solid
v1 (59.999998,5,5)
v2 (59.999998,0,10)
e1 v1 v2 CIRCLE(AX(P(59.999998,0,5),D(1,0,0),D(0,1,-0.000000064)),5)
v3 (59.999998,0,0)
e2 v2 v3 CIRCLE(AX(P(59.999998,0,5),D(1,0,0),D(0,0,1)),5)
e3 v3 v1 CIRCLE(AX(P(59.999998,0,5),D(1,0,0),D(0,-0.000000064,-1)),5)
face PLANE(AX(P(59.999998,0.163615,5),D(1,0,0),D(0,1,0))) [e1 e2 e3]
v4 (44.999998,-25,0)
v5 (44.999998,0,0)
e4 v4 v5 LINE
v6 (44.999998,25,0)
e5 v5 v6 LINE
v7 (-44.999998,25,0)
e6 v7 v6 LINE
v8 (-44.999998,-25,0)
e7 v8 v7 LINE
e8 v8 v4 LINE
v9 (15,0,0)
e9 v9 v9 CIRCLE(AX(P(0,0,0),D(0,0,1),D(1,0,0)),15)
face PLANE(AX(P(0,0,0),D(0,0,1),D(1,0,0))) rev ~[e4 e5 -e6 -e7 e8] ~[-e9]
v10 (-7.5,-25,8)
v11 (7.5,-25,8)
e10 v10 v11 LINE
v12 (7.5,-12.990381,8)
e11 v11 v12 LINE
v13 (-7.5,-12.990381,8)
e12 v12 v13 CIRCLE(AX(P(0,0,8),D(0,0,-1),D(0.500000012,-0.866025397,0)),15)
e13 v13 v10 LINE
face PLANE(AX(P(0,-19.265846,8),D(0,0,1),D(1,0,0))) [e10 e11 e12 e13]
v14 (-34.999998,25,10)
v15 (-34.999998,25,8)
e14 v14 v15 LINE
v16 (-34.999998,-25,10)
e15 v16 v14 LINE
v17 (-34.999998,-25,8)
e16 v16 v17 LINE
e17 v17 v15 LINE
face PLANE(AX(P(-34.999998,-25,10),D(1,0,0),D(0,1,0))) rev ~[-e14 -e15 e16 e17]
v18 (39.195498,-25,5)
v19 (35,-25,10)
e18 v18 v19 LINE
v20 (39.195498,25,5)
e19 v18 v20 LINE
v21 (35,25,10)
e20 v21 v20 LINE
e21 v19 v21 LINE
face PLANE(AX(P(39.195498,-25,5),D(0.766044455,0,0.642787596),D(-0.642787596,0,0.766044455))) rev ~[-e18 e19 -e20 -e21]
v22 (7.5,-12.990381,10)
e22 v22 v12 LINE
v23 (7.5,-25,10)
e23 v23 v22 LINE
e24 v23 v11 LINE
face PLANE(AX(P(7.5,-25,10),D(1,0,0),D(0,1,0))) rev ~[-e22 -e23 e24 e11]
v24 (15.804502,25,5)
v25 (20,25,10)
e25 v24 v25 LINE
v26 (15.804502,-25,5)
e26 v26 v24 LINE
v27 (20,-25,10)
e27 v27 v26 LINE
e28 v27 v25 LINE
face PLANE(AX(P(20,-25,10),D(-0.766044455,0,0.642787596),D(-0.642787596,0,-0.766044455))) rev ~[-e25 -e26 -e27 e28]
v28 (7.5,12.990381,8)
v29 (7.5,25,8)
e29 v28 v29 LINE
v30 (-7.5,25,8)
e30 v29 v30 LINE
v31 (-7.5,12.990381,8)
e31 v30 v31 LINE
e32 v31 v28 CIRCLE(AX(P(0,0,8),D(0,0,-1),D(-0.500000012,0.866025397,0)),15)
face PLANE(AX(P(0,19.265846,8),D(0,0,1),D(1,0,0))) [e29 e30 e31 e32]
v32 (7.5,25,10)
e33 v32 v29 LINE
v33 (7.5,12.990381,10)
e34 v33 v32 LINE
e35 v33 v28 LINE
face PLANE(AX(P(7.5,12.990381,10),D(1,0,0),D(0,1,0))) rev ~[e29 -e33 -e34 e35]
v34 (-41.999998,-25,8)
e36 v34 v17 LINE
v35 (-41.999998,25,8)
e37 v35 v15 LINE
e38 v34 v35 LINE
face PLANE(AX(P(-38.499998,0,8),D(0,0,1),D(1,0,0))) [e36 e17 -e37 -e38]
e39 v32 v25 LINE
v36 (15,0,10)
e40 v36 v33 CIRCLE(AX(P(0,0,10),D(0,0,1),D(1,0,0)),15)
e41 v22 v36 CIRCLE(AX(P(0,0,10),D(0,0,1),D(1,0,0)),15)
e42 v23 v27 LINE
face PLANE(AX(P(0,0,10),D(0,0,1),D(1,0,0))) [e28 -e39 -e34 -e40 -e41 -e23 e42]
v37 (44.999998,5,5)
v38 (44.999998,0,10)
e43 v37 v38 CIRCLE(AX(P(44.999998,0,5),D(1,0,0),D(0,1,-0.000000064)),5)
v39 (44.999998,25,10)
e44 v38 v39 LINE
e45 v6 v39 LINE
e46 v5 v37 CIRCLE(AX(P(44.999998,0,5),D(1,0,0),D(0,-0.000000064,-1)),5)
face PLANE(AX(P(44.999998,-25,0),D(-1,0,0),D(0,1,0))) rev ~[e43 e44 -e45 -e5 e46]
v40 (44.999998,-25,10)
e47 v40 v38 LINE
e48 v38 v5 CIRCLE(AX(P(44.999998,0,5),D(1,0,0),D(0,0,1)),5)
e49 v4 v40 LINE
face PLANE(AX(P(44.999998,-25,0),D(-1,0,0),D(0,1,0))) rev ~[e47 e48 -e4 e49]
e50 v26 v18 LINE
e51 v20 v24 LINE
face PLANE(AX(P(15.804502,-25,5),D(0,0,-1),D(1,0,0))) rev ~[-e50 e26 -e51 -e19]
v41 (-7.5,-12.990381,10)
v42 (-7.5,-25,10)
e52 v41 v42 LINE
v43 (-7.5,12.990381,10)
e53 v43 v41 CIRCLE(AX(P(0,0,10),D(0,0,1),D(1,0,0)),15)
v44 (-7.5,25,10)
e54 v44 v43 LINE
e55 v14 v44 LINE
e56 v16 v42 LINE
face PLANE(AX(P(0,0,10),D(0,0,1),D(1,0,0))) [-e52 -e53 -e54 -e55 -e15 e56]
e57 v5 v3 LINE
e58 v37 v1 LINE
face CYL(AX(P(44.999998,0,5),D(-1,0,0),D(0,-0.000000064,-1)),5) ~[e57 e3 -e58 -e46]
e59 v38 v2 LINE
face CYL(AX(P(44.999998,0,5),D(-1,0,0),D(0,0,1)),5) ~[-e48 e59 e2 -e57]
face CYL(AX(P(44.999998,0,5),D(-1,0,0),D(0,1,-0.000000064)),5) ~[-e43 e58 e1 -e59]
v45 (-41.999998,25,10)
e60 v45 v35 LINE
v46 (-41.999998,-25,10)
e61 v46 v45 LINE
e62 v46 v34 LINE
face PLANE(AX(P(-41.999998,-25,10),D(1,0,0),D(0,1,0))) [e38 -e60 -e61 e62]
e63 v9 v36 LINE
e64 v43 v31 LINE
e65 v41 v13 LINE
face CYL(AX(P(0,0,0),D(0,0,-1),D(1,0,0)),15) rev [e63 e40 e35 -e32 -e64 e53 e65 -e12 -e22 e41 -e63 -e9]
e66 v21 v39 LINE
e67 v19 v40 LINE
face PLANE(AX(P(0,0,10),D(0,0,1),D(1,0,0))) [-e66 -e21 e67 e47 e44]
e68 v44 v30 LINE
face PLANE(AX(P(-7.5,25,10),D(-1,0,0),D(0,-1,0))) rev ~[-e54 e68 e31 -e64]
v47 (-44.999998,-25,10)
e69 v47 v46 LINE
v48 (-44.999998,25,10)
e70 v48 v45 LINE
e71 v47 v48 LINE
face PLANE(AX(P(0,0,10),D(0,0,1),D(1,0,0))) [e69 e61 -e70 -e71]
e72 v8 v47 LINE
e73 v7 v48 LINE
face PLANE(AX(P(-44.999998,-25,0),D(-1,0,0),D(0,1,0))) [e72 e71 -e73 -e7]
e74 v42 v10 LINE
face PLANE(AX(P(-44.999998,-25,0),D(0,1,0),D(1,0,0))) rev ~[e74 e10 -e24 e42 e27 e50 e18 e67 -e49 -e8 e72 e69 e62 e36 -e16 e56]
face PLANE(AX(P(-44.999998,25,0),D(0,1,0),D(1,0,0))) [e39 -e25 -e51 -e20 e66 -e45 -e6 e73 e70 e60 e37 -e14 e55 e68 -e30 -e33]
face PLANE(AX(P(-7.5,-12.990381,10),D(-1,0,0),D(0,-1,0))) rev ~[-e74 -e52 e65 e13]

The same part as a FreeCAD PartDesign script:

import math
import FreeCAD as App
import Part
import Sketcher

V = App.Vector
Q = App.Units.Quantity


def add_polygon(sketch, points):
    """Adds a closed chain of lines whose ends are joined by coincident constraints."""
    first, n = sketch.GeometryCount, len(points)
    for a, b in zip(points, points[1:] + points[:1]):
        sketch.addGeometry(Part.LineSegment(App.Vector(*a, 0), App.Vector(*b, 0)), False)
    for i in range(n):
        sketch.addConstraint(Sketcher.Constraint("Coincident", first + i, 2, first + (i + 1) % n, 1))

doc = App.newDocument("Part")
params = doc.addObject("Spreadsheet::Sheet", "Params")
for row, (alias, value) in enumerate([
    ("sketch1_diameter", "30 mm"),
    ("sketch1_height", "50 mm"),
    ("pad1_length", "10 mm"),
    ("sketch2_radius", "15 mm"),
    ("sketch2_width", "7 mm"),
    ("sketch2_width2", "15 mm"),
    ("sketch2_height", "50 mm"),
    ("pocket1_length", "2 mm"),
    ("sketch3_width", "15 mm"),
    ("sketch4_radius", "5 mm"),
    ("pad2_length", "15 mm"),
], start=1):
    params.set(f"A{row}", alias)
    params.set(f"B{row}", "=" + value)
    params.setAlias(f"B{row}", alias)

body = doc.addObject("PartDesign::Body", "Body")

sketch1 = body.newObject("Sketcher::SketchObject", "Sketch")
sketch1.AttachmentSupport = (doc.getObject("XY_Plane"), [""])
sketch1.MapMode = "FlatFace"
add_polygon(sketch1, [(-45, 25), (-45, -25), (45, -25), (45, 25)])
sketch1.addGeometry(Part.Circle(V(0, 0, 0), V(0, 0, 1), 15), False)
sketch1.addConstraint(Sketcher.Constraint("Vertical", 0))
sketch1.addConstraint(Sketcher.Constraint("Horizontal", 1))
sketch1.addConstraint(Sketcher.Constraint("Vertical", 2))
sketch1.addConstraint(Sketcher.Constraint("Horizontal", 3))
sketch1.addConstraint(Sketcher.Constraint("Coincident", 4, 3, -1, 1))
sketch1.addConstraint(Sketcher.Constraint("Symmetric", 0, 2, 2, 2, -1, 1))
sketch1.addConstraint(Sketcher.Constraint("Diameter", 4, Q("30 mm")))
sketch1.addConstraint(Sketcher.Constraint("DistanceY", 0, 2, 0, 1, Q("50 mm")))
sketch1.addConstraint(Sketcher.Constraint("DistanceX", 1, 1, 1, 2, Q("89.999996 mm")))
sketch1.setExpression("Constraints[10]", "Params.sketch1_diameter")
sketch1.setExpression("Constraints[11]", "Params.sketch1_height")
pad1 = body.newObject("PartDesign::Pad", "Pad")
pad1.Profile = sketch1
pad1.setExpression("Length", "Params.pad1_length")

sketch2 = body.newObject("Sketcher::SketchObject", "Sketch001")
sketch2.AttachmentSupport = (doc.getObject("XY_Plane"), [""])
sketch2.MapMode = "FlatFace"
sketch2.AttachmentOffset = App.Placement(V(0, 0, 10), App.Rotation())
add_polygon(sketch2, [(-42, 25), (-42, -25), (-35, -25), (-35, 25)])
sketch2.addGeometry(Part.LineSegment(V(-8, -13, 0), V(-8, -25, 0)), False)
sketch2.addGeometry(Part.LineSegment(V(-8, -25, 0), V(8, -25, 0)), False)
sketch2.addGeometry(Part.LineSegment(V(8, -25, 0), V(8, -13, 0)), False)
sketch2.addGeometry(Part.ArcOfCircle(Part.Circle(V(0, 0, 0), V(0, 0, 1), 15), math.radians(-120), math.radians(-60)), False)
sketch2.addGeometry(Part.LineSegment(V(8, 25, 0), V(-8, 25, 0)), False)
sketch2.addGeometry(Part.LineSegment(V(-8, 25, 0), V(-8, 13, 0)), False)
sketch2.addGeometry(Part.ArcOfCircle(Part.Circle(V(0, 0, 0), V(0, 0, 1), 15), math.radians(60), math.radians(120)), False)
sketch2.addGeometry(Part.LineSegment(V(8, 13, 0), V(8, 25, 0)), False)
sketch2.addConstraint(Sketcher.Constraint("Coincident", 4, 2, 5, 1))
sketch2.addConstraint(Sketcher.Constraint("Coincident", 5, 2, 6, 1))
sketch2.addConstraint(Sketcher.Constraint("Coincident", 6, 2, 7, 2))
sketch2.addConstraint(Sketcher.Constraint("Coincident", 7, 1, 4, 1))
sketch2.addConstraint(Sketcher.Constraint("Coincident", 8, 2, 9, 1))
sketch2.addConstraint(Sketcher.Constraint("Coincident", 9, 2, 10, 2))
sketch2.addConstraint(Sketcher.Constraint("Coincident", 10, 1, 11, 1))
sketch2.addConstraint(Sketcher.Constraint("Coincident", 11, 2, 8, 1))
sketch2.addConstraint(Sketcher.Constraint("Vertical", 0))
sketch2.addConstraint(Sketcher.Constraint("Horizontal", 1))
sketch2.addConstraint(Sketcher.Constraint("Vertical", 2))
sketch2.addConstraint(Sketcher.Constraint("Horizontal", 3))
sketch2.addConstraint(Sketcher.Constraint("Vertical", 4))
sketch2.addConstraint(Sketcher.Constraint("Horizontal", 5))
sketch2.addConstraint(Sketcher.Constraint("Vertical", 6))
sketch2.addConstraint(Sketcher.Constraint("Horizontal", 8))
sketch2.addConstraint(Sketcher.Constraint("Vertical", 9))
sketch2.addConstraint(Sketcher.Constraint("Vertical", 11))
sketch2.addConstraint(Sketcher.Constraint("Coincident", 7, 3, -1, 1))
sketch2.addConstraint(Sketcher.Constraint("Coincident", 10, 3, -1, 1))
sketch2.addConstraint(Sketcher.Constraint("Equal", 7, 10))
sketch2.addConstraint(Sketcher.Constraint("Symmetric", 5, 2, 8, 2, -1, 1))
sketch2.addConstraint(Sketcher.Constraint("Horizontal", 1, 2, 4, 2))
sketch2.addConstraint(Sketcher.Constraint("Horizontal", 6, 2, 7, 1))
sketch2.addConstraint(Sketcher.Constraint("Horizontal", 3, 2, 8, 2))
sketch2.addConstraint(Sketcher.Constraint("Horizontal", 9, 2, 10, 1))
sketch2.addConstraint(Sketcher.Constraint("Radius", 7, Q("15 mm")))
sketch2.addConstraint(Sketcher.Constraint("DistanceX", 1, 1, 1, 2, Q("7 mm")))
sketch2.addConstraint(Sketcher.Constraint("DistanceX", 5, 1, 5, 2, Q("15 mm")))
sketch2.addConstraint(Sketcher.Constraint("DistanceY", 0, 2, 0, 1, Q("50 mm")))
sketch2.addConstraint(Sketcher.Constraint("DistanceX", 0, 2, -1, 1, Q("41.999998 mm")))
sketch2.setExpression("Constraints[30]", "Params.sketch2_radius")
sketch2.setExpression("Constraints[31]", "Params.sketch2_width")
sketch2.setExpression("Constraints[32]", "Params.sketch2_width2")
sketch2.setExpression("Constraints[33]", "Params.sketch2_height")
pocket1 = body.newObject("PartDesign::Pocket", "Pocket")
pocket1.Profile = sketch2
pocket1.setExpression("Length", "Params.pocket1_length")

sketch3 = body.newObject("Sketcher::SketchObject", "Sketch002")
sketch3.AttachmentSupport = (doc.getObject("XZ_Plane"), [""])
sketch3.MapMode = "FlatFace"
sketch3.AttachmentOffset = App.Placement(V(0, 0, 25), App.Rotation())
add_polygon(sketch3, [(35, 10), (20, 10), (16, 5), (39, 5)])
sketch3.addConstraint(Sketcher.Constraint("Horizontal", 0))
sketch3.addConstraint(Sketcher.Constraint("Horizontal", 2))
sketch3.addConstraint(Sketcher.Constraint("Equal", 1, 3))
sketch3.addConstraint(Sketcher.Constraint("DistanceX", 0, 2, 0, 1, Q("15 mm")))
sketch3.addConstraint(Sketcher.Constraint("Angle", 1, Q("-129.999999 deg")))
sketch3.addConstraint(Sketcher.Constraint("DistanceX", -1, 1, 0, 2, Q("20 mm")))
sketch3.addConstraint(Sketcher.Constraint("DistanceY", -1, 1, 0, 2, Q("10 mm")))
sketch3.addConstraint(Sketcher.Constraint("DistanceY", -1, 1, 1, 2, Q("5 mm")))
sketch3.setExpression("Constraints[7]", "Params.sketch3_width")
pocket2 = body.newObject("PartDesign::Pocket", "Pocket001")
pocket2.Profile = sketch3
pocket2.Type = "ThroughAll"

sketch4 = body.newObject("Sketcher::SketchObject", "Sketch003")
sketch4.AttachmentSupport = (doc.getObject("YZ_Plane"), [""])
sketch4.MapMode = "FlatFace"
sketch4.AttachmentOffset = App.Placement(V(0, 0, 44.999998), App.Rotation())
sketch4.addGeometry(Part.ArcOfCircle(Part.Circle(V(0, 5, 0), V(0, 0, 1), 5), math.radians(-90), math.radians(0)), False)
sketch4.addGeometry(Part.ArcOfCircle(Part.Circle(V(0, 5, 0), V(0, 0, 1), 5), math.radians(0), math.radians(90)), False)
sketch4.addGeometry(Part.ArcOfCircle(Part.Circle(V(0, 5, 0), V(0, 0, 1), 5), math.radians(90), math.radians(270)), False)
sketch4.addConstraint(Sketcher.Constraint("Tangent", 0, 2, 1, 1))
sketch4.addConstraint(Sketcher.Constraint("Tangent", 1, 2, 2, 1))
sketch4.addConstraint(Sketcher.Constraint("Tangent", 2, 2, 0, 1))
sketch4.addConstraint(Sketcher.Constraint("Coincident", 2, 2, -1, 1))
sketch4.addConstraint(Sketcher.Constraint("PointOnObject", 0, 3, -2))
sketch4.addConstraint(Sketcher.Constraint("PointOnObject", 1, 2, -2))
sketch4.addConstraint(Sketcher.Constraint("Horizontal", 2, 3, 0, 2))
sketch4.addConstraint(Sketcher.Constraint("Radius", 0, Q("5 mm")))
sketch4.setExpression("Constraints[7]", "Params.sketch4_radius")
pad2 = body.newObject("PartDesign::Pad", "Pad001")
pad2.Profile = sketch4
pad2.setExpression("Length", "Params.pad2_length")

doc.recompute()
